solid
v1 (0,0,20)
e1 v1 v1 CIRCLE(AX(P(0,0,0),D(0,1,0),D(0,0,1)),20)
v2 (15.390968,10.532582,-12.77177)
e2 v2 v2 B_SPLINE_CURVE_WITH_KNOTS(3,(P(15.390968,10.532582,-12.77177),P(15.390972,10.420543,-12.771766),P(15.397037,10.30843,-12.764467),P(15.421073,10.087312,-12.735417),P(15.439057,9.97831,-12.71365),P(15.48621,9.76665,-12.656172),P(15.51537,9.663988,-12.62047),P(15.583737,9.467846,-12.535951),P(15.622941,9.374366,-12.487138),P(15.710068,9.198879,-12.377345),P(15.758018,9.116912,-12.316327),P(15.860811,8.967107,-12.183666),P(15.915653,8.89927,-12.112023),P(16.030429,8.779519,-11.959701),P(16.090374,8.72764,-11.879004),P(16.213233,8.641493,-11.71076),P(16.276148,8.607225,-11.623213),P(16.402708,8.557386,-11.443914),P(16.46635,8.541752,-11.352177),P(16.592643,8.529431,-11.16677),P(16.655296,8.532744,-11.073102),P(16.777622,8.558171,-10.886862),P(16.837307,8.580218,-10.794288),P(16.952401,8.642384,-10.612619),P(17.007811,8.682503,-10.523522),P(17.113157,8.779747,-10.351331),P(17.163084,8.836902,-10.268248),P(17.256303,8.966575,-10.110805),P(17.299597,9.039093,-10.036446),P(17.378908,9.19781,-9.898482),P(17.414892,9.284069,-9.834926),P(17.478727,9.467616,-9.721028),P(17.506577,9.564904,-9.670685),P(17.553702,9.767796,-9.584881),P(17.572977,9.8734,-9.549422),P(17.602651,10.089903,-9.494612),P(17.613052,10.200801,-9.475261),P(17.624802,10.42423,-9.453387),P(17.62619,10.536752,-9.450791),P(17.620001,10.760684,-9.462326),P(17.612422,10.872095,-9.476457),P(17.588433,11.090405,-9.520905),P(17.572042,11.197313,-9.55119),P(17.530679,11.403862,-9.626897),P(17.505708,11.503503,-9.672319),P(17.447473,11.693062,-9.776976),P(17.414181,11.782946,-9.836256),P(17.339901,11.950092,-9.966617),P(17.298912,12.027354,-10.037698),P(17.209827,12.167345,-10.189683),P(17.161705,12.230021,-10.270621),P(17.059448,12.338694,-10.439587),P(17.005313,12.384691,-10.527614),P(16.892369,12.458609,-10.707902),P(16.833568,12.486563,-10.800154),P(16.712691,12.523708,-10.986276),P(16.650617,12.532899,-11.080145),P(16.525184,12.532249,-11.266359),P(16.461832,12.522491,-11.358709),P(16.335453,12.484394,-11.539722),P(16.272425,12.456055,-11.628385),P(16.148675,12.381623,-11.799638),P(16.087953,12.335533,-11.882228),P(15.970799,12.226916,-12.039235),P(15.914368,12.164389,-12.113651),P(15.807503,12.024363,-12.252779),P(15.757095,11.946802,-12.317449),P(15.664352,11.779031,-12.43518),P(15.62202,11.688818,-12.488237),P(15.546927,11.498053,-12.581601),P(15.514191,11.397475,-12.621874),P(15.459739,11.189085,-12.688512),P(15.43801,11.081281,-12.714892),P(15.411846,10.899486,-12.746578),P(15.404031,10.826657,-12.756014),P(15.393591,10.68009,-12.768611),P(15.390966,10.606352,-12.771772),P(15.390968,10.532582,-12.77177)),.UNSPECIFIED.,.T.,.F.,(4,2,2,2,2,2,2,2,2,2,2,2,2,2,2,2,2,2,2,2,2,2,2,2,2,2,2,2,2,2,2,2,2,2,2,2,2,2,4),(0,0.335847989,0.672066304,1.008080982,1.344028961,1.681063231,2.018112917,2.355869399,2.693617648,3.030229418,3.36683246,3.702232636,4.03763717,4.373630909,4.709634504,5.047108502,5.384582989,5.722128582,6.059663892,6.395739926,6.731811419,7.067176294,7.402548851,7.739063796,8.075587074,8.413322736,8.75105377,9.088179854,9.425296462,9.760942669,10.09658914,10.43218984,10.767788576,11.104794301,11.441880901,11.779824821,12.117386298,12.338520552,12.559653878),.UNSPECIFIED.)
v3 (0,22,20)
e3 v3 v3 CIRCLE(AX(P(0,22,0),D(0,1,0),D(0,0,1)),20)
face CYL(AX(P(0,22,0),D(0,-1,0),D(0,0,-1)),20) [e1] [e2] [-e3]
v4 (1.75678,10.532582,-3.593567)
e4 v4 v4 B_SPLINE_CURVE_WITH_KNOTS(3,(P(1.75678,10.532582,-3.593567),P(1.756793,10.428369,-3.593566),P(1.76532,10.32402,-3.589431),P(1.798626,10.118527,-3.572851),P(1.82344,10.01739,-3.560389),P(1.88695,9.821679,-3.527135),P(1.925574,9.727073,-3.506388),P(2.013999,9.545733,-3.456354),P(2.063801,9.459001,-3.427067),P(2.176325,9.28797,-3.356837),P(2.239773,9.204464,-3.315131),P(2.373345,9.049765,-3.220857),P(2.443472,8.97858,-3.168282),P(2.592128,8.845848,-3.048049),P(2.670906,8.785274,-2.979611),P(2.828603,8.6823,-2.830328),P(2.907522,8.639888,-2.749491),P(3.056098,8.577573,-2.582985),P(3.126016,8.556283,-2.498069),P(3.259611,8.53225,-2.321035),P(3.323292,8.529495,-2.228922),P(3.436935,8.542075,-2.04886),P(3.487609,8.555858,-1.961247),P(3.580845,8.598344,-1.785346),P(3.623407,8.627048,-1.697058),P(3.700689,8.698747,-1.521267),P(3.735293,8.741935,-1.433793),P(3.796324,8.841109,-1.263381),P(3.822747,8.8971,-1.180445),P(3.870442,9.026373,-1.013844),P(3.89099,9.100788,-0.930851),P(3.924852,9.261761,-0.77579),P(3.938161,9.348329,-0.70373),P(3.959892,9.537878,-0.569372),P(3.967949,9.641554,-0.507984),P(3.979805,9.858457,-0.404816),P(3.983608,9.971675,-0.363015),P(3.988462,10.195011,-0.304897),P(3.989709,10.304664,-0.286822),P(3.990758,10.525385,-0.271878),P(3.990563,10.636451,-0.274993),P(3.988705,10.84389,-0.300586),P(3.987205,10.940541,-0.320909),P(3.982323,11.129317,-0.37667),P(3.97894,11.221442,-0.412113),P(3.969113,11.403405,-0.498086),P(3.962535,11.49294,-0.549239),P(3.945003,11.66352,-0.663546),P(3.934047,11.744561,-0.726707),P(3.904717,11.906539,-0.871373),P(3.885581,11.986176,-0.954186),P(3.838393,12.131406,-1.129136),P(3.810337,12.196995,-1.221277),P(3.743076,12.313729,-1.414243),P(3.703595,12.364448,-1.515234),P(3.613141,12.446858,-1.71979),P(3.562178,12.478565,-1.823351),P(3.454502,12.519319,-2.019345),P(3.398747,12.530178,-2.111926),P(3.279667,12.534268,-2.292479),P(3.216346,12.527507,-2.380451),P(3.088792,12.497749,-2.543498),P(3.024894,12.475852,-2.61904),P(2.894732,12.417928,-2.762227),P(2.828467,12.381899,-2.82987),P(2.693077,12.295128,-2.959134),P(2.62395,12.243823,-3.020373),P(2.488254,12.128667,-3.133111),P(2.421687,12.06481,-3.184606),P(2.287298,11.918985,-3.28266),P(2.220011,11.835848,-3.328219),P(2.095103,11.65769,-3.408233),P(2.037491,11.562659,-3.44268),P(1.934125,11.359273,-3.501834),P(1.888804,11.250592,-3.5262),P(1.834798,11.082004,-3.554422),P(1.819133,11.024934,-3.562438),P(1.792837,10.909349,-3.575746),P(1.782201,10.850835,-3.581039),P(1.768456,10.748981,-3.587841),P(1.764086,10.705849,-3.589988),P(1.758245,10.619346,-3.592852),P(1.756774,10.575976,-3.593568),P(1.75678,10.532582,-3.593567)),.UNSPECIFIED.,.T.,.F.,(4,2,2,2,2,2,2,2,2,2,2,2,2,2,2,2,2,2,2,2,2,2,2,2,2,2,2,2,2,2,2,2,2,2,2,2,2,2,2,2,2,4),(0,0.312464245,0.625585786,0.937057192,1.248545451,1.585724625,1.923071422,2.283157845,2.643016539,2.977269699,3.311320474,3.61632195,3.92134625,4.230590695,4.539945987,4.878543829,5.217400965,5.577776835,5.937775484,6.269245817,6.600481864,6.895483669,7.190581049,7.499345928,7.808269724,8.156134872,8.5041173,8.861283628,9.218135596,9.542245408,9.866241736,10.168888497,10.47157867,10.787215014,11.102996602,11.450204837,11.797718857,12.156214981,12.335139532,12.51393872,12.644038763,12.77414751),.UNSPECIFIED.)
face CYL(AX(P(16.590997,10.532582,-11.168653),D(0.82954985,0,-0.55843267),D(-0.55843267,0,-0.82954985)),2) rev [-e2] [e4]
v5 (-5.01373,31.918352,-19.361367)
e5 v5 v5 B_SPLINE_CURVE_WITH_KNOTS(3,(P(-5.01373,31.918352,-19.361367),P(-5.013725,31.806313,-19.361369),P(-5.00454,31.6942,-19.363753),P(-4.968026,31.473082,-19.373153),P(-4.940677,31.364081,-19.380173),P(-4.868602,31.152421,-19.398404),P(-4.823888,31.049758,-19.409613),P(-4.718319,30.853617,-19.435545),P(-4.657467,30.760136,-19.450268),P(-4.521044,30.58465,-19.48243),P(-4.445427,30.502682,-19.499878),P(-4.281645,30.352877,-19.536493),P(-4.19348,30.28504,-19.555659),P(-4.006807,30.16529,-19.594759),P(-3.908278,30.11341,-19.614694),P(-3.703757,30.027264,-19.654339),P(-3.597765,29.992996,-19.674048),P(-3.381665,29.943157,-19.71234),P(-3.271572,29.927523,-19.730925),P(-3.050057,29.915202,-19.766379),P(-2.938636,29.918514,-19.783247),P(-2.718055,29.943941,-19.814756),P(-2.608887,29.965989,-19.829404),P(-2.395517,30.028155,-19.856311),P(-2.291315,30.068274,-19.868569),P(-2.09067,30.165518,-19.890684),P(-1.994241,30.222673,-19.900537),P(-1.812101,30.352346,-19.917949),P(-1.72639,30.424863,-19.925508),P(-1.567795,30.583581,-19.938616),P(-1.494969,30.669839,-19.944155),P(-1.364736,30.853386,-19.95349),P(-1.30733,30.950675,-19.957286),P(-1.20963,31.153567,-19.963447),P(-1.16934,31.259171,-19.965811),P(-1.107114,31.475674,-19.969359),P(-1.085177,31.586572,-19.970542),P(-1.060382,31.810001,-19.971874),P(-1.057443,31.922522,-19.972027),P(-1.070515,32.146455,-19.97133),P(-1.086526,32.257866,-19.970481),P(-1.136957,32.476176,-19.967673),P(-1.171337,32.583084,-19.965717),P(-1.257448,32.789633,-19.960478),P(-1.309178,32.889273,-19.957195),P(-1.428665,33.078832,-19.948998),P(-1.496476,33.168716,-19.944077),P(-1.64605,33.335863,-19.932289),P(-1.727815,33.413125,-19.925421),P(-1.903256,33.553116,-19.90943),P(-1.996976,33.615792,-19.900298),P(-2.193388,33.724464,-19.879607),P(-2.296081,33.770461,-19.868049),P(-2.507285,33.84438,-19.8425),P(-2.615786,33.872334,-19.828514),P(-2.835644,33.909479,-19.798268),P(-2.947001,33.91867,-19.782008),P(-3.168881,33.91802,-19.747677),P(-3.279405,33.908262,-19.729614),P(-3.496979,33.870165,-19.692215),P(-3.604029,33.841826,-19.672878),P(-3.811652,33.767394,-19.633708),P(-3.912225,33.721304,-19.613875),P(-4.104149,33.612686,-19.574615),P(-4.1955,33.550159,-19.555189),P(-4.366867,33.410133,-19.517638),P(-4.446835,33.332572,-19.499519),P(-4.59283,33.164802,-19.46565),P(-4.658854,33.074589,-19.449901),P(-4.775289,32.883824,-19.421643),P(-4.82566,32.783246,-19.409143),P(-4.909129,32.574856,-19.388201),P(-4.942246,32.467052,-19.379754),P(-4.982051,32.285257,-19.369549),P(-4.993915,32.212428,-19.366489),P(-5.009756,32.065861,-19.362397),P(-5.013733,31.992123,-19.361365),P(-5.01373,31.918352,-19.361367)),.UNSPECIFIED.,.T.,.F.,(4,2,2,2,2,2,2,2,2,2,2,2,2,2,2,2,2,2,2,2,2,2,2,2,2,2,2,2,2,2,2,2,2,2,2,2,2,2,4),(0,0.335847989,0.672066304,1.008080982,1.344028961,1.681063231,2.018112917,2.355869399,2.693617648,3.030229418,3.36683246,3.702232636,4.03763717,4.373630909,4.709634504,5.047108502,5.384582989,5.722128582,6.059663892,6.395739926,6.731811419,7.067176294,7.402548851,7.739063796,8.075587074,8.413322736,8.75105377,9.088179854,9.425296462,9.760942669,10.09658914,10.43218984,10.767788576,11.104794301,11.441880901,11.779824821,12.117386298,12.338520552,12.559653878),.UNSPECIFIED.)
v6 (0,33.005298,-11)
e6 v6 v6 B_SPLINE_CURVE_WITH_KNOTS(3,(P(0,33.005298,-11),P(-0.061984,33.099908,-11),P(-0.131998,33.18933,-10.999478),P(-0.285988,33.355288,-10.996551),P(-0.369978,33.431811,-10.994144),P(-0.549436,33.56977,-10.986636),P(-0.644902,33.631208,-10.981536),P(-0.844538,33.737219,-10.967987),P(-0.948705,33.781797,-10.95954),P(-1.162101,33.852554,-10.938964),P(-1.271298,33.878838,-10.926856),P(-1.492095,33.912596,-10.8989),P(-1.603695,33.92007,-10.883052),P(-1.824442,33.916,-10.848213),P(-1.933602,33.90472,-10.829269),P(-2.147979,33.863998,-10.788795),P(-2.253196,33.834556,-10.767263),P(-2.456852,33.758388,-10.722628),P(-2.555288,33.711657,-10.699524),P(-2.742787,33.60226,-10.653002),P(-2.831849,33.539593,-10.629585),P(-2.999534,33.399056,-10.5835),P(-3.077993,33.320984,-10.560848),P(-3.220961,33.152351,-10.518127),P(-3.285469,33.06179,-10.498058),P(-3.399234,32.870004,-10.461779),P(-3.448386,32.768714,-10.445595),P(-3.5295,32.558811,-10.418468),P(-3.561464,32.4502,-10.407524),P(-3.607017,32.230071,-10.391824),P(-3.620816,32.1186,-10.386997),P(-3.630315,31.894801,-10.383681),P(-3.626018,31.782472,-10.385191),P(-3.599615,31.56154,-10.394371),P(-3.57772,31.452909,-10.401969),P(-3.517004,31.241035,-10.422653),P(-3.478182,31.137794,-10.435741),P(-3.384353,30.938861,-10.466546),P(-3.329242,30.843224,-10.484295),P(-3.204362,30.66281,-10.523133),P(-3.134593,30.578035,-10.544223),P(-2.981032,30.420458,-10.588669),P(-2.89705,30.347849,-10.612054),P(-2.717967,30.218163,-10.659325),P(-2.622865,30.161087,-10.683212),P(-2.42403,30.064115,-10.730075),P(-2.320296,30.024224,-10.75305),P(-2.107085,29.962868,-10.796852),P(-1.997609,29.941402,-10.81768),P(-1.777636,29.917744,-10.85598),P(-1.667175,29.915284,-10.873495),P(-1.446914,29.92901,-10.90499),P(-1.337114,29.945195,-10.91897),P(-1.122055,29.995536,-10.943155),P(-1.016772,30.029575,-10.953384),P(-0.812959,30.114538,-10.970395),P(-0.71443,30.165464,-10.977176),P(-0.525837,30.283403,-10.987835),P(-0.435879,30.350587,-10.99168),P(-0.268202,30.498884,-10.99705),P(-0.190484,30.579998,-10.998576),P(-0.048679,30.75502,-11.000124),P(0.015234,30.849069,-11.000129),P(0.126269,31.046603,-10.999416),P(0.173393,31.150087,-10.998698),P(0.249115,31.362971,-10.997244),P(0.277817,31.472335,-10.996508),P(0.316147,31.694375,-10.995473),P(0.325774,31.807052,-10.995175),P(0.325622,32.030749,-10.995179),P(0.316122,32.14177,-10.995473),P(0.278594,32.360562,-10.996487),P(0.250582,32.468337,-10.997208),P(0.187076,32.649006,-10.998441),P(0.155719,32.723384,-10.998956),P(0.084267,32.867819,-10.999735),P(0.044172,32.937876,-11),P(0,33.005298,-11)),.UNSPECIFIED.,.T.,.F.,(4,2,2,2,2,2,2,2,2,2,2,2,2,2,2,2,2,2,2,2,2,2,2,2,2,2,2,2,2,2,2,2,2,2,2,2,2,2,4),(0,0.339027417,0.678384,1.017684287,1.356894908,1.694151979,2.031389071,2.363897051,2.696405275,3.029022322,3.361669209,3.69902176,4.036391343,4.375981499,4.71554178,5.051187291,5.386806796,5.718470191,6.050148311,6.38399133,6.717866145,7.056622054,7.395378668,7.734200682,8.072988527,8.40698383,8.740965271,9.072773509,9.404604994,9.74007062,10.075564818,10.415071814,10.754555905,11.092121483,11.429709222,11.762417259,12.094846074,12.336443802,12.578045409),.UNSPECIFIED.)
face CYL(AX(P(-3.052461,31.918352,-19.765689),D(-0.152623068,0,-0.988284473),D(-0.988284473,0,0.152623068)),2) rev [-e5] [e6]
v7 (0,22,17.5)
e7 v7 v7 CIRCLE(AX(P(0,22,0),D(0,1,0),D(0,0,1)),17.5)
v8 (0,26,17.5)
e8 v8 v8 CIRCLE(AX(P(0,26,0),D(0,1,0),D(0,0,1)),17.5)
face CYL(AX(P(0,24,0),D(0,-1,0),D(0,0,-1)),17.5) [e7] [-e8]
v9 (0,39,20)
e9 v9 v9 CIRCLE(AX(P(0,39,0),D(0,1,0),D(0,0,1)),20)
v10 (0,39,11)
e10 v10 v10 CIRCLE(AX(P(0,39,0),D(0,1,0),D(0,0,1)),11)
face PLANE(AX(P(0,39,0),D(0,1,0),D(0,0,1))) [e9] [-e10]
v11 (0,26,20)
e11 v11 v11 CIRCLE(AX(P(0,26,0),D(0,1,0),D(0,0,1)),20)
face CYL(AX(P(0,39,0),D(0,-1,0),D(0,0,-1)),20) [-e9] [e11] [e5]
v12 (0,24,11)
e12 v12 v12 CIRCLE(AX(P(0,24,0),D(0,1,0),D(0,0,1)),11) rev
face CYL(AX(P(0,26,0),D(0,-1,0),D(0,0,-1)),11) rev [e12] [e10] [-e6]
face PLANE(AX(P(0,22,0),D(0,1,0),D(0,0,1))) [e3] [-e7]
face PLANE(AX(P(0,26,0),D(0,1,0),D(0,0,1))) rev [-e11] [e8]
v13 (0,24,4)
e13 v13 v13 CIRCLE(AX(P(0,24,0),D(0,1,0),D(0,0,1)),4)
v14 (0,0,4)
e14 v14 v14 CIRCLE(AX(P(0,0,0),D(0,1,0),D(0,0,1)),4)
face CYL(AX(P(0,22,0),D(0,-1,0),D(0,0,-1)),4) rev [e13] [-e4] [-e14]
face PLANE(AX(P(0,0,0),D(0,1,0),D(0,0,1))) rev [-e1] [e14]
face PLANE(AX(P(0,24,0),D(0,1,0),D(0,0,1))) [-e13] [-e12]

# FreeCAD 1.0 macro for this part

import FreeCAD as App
import Part
import Sketcher
from FreeCAD import Vector
Q = App.Units.Quantity

doc = App.newDocument("Part")
params = doc.addObject("Spreadsheet::Sheet", "Params")
for row, (alias, value) in enumerate([
    ("sketch1_diameter", "40 mm"),
    ("sketch1_diameter2", "8 mm"),
    ("pad1_length", "22 mm"),
    ("sketch2_diameter", "35 mm"),
    ("sketch2_diameter2", "8 mm"),
    ("pad2_length", "2 mm"),
    ("sketch3_diameter", "35 mm"),
    ("sketch3_diameter2", "22 mm"),
    ("pad3_length", "2 mm"),
    ("sketch4_diameter", "40 mm"),
    ("sketch4_diameter2", "22 mm"),
    ("pad4_length", "13 mm"),
    ("sketch5_diameter", "4 mm"),
    ("sketch6_diameter", "4 mm"),
], start=1):
    params.set(f"A{row}", alias)
    params.set(f"B{row}", "=" + value)
    params.setAlias(f"B{row}", alias)

body = doc.addObject("PartDesign::Body", "Body")

sketch1 = body.newObject("Sketcher::SketchObject", "Sketch")
sketch1.AttachmentSupport = (doc.getObject("XZ_Plane"), [""])
sketch1.MapMode = "FlatFace"
sketch1.addGeometry([
    Part.Circle(Vector(0, 0, 0), Vector(0, 0, 1), 20),
    Part.Circle(Vector(0, 0, 0), Vector(0, 0, 1), 4),
], False)
sketch1.addConstraint([
    Sketcher.Constraint("Coincident", 0, 3, -1, 1),
    Sketcher.Constraint("Coincident", 1, 3, -1, 1),
    Sketcher.Constraint("Diameter", 0, Q("40 mm")),
    Sketcher.Constraint("Diameter", 1, Q("8 mm")),
])
sketch1.setExpression("Constraints[2]", "Params.sketch1_diameter")
sketch1.setExpression("Constraints[3]", "Params.sketch1_diameter2")
pad1 = body.newObject("PartDesign::Pad", "Pad")
pad1.Profile = sketch1
pad1.setExpression("Length", "Params.pad1_length")
pad1.Reversed = True

sketch2 = body.newObject("Sketcher::SketchObject", "Sketch001")
sketch2.AttachmentSupport = (doc.getObject("XZ_Plane"), [""])
sketch2.MapMode = "FlatFace"
sketch2.AttachmentOffset = App.Placement(Vector(0, 0, -22), App.Rotation())
sketch2.addGeometry([
    Part.Circle(Vector(0, 0, 0), Vector(0, 0, 1), 17.5),
    Part.Circle(Vector(0, 0, 0), Vector(0, 0, 1), 4),
], False)
sketch2.addConstraint([
    Sketcher.Constraint("Coincident", 0, 3, -1, 1),
    Sketcher.Constraint("Coincident", 1, 3, -1, 1),
    Sketcher.Constraint("Diameter", 0, Q("35 mm")),
    Sketcher.Constraint("Diameter", 1, Q("8 mm")),
])
sketch2.setExpression("Constraints[2]", "Params.sketch2_diameter")
sketch2.setExpression("Constraints[3]", "Params.sketch2_diameter2")
pad2 = body.newObject("PartDesign::Pad", "Pad001")
pad2.Profile = sketch2
pad2.setExpression("Length", "Params.pad2_length")
pad2.Reversed = True

sketch3 = body.newObject("Sketcher::SketchObject", "Sketch002")
sketch3.AttachmentSupport = (doc.getObject("XZ_Plane"), [""])
sketch3.MapMode = "FlatFace"
sketch3.AttachmentOffset = App.Placement(Vector(0, 0, -24), App.Rotation())
sketch3.addGeometry([
    Part.Circle(Vector(0, 0, 0), Vector(0, 0, 1), 17.5),
    Part.Circle(Vector(0, 0, 0), Vector(0, 0, 1), 11),
], False)
sketch3.addConstraint([
    Sketcher.Constraint("Coincident", 0, 3, -1, 1),
    Sketcher.Constraint("Coincident", 1, 3, -1, 1),
    Sketcher.Constraint("Diameter", 0, Q("35 mm")),
    Sketcher.Constraint("Diameter", 1, Q("22 mm")),
])
sketch3.setExpression("Constraints[2]", "Params.sketch3_diameter")
sketch3.setExpression("Constraints[3]", "Params.sketch3_diameter2")
pad3 = body.newObject("PartDesign::Pad", "Pad002")
pad3.Profile = sketch3
pad3.setExpression("Length", "Params.pad3_length")
pad3.Reversed = True

sketch4 = body.newObject("Sketcher::SketchObject", "Sketch003")
sketch4.AttachmentSupport = (doc.getObject("XZ_Plane"), [""])
sketch4.MapMode = "FlatFace"
sketch4.AttachmentOffset = App.Placement(Vector(0, 0, -26), App.Rotation())
sketch4.addGeometry([
    Part.Circle(Vector(0, 0, 0), Vector(0, 0, 1), 20),
    Part.Circle(Vector(0, 0, 0), Vector(0, 0, 1), 11),
], False)
sketch4.addConstraint([
    Sketcher.Constraint("Coincident", 0, 3, -1, 1),
    Sketcher.Constraint("Coincident", 1, 3, -1, 1),
    Sketcher.Constraint("Diameter", 0, Q("40 mm")),
    Sketcher.Constraint("Diameter", 1, Q("22 mm")),
])
sketch4.setExpression("Constraints[2]", "Params.sketch4_diameter")
sketch4.setExpression("Constraints[3]", "Params.sketch4_diameter2")
pad4 = body.newObject("PartDesign::Pad", "Pad003")
pad4.Profile = sketch4
pad4.setExpression("Length", "Params.pad4_length")
pad4.Reversed = True

sketch5 = body.newObject("Sketcher::SketchObject", "Sketch004")
sketch5.Placement = App.Placement(Vector(16.590997, 10.532582, -11.168653), App.Rotation(Vector(0.55843267, 0, 0.82954985), Vector(0, -1.000000001, 0), Vector(0.82954985, 0, -0.55843267), "ZXY"))
sketch5.addGeometry(Part.Circle(Vector(0, 0, 0), Vector(0, 0, 1), 2), False)
sketch5.addConstraint([
    Sketcher.Constraint("Coincident", 0, 3, -1, 1),
    Sketcher.Constraint("Diameter", 0, Q("4 mm")),
])
sketch5.setExpression("Constraints[1]", "Params.sketch5_diameter")
pocket1 = body.newObject("PartDesign::Pocket", "Pocket")
pocket1.Profile = sketch5
pocket1.Type = "UpToFirst"

sketch6 = body.newObject("Sketcher::SketchObject", "Sketch005")
sketch6.Placement = App.Placement(Vector(-3.052461, 31.918352, -19.765689), App.Rotation(Vector(-0.988284473, 0, 0.152623068), Vector(0, 1, 0), Vector(-0.152623068, 0, -0.988284473), "ZXY"))
sketch6.addGeometry(Part.Circle(Vector(0, 0, 0), Vector(0, 0, 1), 2), False)
sketch6.addConstraint([
    Sketcher.Constraint("Coincident", 0, 3, -1, 1),
    Sketcher.Constraint("Diameter", 0, Q("4 mm")),
])
sketch6.setExpression("Constraints[1]", "Params.sketch6_diameter")
pocket2 = body.newObject("PartDesign::Pocket", "Pocket001")
pocket2.Profile = sketch6
pocket2.Type = "UpToFirst"

doc.recompute()
